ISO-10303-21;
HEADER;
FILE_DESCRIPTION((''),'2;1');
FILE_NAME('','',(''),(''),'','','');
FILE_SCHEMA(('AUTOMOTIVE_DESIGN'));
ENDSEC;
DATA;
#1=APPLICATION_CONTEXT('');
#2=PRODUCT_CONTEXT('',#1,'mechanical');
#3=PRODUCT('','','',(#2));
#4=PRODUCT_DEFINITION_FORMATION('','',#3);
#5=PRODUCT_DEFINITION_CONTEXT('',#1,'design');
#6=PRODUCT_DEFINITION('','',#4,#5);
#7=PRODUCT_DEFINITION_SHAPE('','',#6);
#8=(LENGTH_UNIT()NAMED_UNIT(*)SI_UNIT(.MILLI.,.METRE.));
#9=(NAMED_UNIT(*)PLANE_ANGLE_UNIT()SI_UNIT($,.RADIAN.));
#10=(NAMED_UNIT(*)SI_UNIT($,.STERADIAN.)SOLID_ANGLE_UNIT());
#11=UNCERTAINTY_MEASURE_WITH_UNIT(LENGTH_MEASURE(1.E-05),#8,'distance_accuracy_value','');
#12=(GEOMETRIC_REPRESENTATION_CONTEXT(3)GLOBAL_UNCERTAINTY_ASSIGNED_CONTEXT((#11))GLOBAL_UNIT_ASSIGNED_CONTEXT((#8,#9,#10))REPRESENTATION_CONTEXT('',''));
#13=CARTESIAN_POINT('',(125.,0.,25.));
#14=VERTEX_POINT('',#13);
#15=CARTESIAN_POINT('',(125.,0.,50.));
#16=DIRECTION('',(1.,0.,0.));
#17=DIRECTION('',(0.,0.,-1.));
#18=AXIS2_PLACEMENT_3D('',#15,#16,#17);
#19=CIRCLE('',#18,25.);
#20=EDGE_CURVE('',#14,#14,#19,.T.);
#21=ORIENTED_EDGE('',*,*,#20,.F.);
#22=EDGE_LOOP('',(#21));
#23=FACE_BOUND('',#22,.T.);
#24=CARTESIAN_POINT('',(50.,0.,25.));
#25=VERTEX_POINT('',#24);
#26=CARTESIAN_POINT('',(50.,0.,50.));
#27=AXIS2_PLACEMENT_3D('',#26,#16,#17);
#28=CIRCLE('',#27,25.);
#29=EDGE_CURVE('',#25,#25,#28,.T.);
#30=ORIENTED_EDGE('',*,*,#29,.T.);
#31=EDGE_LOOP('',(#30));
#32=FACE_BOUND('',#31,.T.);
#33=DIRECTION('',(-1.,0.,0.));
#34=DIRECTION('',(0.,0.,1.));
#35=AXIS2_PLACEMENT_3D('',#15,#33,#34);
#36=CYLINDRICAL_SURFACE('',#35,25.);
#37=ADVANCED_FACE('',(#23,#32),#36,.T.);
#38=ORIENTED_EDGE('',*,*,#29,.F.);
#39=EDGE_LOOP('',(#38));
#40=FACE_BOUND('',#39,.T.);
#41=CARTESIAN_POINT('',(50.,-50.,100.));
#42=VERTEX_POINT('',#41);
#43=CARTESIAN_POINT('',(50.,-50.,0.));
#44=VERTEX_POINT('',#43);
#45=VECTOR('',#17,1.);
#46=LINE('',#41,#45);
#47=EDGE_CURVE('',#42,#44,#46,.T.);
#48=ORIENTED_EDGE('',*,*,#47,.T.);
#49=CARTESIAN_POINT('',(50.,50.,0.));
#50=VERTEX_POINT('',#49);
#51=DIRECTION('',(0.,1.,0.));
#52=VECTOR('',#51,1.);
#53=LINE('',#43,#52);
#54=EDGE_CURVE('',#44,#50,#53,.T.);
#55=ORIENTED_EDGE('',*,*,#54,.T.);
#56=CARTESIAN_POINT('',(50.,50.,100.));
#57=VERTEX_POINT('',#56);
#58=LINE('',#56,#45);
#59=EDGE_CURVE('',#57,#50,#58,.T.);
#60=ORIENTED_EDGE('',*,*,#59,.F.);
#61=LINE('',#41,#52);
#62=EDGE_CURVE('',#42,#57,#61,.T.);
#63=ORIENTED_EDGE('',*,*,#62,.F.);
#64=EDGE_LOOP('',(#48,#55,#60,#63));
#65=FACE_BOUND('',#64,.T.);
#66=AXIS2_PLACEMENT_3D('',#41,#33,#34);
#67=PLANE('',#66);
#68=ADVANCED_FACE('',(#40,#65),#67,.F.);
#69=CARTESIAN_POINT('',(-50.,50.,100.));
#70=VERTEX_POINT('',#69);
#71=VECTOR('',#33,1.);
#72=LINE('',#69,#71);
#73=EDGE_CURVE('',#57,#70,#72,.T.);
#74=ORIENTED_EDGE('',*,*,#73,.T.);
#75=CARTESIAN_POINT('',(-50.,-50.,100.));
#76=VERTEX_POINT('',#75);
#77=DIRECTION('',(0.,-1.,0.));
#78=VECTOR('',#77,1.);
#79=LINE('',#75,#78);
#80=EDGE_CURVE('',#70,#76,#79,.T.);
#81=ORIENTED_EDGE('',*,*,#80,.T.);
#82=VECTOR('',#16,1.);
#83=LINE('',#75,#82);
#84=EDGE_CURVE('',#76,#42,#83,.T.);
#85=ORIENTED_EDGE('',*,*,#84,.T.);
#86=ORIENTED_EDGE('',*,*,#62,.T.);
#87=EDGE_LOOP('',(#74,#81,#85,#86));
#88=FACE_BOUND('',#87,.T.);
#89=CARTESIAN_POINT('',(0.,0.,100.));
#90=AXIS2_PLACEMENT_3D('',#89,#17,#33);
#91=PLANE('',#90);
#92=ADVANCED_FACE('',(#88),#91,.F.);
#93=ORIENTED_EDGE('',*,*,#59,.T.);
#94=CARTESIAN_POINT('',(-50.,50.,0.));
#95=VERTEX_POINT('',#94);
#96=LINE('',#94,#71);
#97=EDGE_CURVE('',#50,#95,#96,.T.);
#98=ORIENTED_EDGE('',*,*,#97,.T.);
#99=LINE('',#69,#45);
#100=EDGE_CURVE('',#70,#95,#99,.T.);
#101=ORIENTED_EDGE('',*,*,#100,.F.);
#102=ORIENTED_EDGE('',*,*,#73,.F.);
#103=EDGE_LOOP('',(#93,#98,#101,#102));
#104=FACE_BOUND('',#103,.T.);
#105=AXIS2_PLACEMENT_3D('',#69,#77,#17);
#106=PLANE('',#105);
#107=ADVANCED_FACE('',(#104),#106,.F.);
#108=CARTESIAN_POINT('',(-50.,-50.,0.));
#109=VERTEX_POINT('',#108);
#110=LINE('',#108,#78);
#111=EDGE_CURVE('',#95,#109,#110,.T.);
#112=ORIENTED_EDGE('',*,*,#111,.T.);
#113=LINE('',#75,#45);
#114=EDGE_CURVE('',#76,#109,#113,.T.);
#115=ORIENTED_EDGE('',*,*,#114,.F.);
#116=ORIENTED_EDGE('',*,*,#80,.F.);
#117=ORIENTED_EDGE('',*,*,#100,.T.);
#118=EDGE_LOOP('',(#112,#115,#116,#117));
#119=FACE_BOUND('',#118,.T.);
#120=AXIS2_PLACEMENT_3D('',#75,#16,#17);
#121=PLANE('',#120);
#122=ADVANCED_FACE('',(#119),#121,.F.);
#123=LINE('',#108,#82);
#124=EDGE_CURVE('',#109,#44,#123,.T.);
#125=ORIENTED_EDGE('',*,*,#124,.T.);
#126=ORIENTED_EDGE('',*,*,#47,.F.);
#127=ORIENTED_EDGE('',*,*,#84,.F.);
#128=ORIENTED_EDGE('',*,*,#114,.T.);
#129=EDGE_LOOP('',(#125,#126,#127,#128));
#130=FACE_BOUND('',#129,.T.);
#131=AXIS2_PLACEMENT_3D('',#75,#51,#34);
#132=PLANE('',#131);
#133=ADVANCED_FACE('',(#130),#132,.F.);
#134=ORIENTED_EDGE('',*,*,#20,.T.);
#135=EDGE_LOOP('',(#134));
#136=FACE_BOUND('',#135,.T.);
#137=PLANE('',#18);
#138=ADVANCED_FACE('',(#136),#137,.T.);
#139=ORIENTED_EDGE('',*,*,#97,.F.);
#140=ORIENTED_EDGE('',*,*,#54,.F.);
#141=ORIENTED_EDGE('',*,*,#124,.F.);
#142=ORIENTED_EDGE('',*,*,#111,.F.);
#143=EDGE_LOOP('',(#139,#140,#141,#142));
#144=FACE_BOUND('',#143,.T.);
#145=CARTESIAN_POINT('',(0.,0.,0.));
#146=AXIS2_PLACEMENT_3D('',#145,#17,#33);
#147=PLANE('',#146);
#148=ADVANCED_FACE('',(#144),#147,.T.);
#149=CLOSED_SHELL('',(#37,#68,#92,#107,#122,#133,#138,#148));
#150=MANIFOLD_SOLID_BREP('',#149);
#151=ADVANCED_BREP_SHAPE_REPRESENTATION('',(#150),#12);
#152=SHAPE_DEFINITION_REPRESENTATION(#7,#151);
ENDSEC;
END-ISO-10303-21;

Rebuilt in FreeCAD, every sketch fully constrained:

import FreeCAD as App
import Part
import Sketcher
Q = App.Units.Quantity


def add_polygon(sketch, points):
    """Adds a closed chain of lines whose ends are joined by coincident constraints."""
    first, n = sketch.GeometryCount, len(points)
    for a, b in zip(points, points[1:] + points[:1]):
        sketch.addGeometry(Part.LineSegment(App.Vector(*a, 0), App.Vector(*b, 0)), False)
    for i in range(n):
        sketch.addConstraint(Sketcher.Constraint("Coincident", first + i, 2, first + (i + 1) % n, 1))

doc = App.newDocument("Part")
params = doc.addObject("Spreadsheet::Sheet", "Params")
for row, (alias, value) in enumerate([
    ("sketch1_width", "100 mm"),
    ("pad1_length", "100 mm"),
    ("sketch2_diameter", "50 mm"),
    ("pad2_length", "75 mm"),
], start=1):
    params.set(f"A{row}", alias)
    params.set(f"B{row}", "=" + value)
    params.setAlias(f"B{row}", alias)

body = doc.addObject("PartDesign::Body", "Body")

# Sketch on XY plane
sketch1 = doc.addObject("Sketcher::SketchObject", "Sketch")
body.addObject(sketch1)
sketch1.AttachmentSupport = (doc.XY_Plane, [""])
sketch1.MapMode = "FlatFace"
add_polygon(sketch1, [(-50, 50), (-50, -50), (50, -50), (50, 50)])  # lines 0-3
sketch1.addConstraint([
    Sketcher.Constraint("Vertical", 0),
    Sketcher.Constraint("Horizontal", 1),
    Sketcher.Constraint("Vertical", 2),
    Sketcher.Constraint("Horizontal", 3),
    Sketcher.Constraint("Symmetric", 0, 2, 2, 2, -1, 1),
    Sketcher.Constraint("Equal", 3, 0),
    Sketcher.Constraint("DistanceX", 1, 1, 1, 2, Q("100 mm")),
])
sketch1.setExpression("Constraints[10]", "Params.sketch1_width")
pad1 = doc.addObject("PartDesign::Pad", "Pad")
body.addObject(pad1)
pad1.Profile = sketch1
pad1.setExpression("Length", "Params.pad1_length")

# Sketch on YZ plane
sketch2 = doc.addObject("Sketcher::SketchObject", "Sketch001")
body.addObject(sketch2)
sketch2.AttachmentSupport = (doc.YZ_Plane, [""])
sketch2.MapMode = "FlatFace"
sketch2.AttachmentOffset = App.Placement(App.Vector(0, 0, 50), App.Rotation())
sketch2.addGeometry(Part.Circle(App.Vector(0, 50, 0), App.Vector(0, 0, 1), 25), False)
sketch2.addConstraint([
    Sketcher.Constraint("PointOnObject", 0, 3, -2),
    Sketcher.Constraint("Diameter", 0, Q("50 mm")),
    Sketcher.Constraint("DistanceY", -1, 1, 0, 3, Q("50 mm")),
])
sketch2.setExpression("Constraints[1]", "Params.sketch2_diameter")
pad2 = doc.addObject("PartDesign::Pad", "Pad001")
body.addObject(pad2)
pad2.Profile = sketch2
pad2.setExpression("Length", "Params.pad2_length")

doc.recompute()
